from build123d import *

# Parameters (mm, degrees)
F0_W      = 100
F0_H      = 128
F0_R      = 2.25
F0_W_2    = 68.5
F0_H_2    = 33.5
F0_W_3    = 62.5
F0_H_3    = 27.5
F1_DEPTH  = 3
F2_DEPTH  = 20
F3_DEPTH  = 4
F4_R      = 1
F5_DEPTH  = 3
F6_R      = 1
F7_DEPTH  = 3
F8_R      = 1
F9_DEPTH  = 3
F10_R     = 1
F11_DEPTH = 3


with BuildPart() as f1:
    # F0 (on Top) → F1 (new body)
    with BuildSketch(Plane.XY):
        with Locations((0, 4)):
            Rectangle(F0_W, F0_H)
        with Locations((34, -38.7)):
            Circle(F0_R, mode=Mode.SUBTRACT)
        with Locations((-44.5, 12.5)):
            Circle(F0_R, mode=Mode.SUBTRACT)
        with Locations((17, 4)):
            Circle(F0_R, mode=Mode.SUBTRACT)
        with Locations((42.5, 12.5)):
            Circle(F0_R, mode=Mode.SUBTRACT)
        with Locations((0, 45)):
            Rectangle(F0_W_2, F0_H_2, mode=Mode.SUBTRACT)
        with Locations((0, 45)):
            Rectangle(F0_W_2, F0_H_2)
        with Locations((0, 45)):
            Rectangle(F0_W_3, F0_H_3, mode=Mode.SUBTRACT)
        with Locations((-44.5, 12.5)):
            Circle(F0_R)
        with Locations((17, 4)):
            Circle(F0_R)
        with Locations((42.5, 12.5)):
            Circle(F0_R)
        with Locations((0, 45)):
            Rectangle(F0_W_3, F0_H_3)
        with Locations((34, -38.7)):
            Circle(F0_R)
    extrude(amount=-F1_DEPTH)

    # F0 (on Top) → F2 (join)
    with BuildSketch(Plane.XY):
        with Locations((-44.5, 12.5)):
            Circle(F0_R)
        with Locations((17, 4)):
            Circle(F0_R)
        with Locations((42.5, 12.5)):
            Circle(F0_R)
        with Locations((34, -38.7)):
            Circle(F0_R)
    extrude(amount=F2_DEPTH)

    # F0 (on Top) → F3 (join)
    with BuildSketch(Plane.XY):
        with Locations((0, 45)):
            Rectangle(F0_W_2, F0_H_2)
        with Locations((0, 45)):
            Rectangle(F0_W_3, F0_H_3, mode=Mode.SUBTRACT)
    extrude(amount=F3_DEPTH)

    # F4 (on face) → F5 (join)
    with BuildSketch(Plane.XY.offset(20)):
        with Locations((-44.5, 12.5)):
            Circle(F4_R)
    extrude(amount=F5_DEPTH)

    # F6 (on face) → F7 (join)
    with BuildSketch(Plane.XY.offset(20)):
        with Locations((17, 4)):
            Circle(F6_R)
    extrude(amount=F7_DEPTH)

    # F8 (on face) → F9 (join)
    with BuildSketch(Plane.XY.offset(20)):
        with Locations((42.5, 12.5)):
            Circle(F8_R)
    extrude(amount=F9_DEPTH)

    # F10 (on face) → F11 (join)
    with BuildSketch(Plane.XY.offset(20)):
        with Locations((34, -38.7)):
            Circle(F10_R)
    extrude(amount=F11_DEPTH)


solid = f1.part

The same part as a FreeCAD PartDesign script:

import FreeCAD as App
import Part
import Sketcher
from FreeCAD import Vector
Q = App.Units.Quantity


def add_polygon(sketch, points):
    """Adds a closed chain of lines whose ends are joined by coincident constraints."""
    first, n = sketch.GeometryCount, len(points)
    for a, b in zip(points, points[1:] + points[:1]):
        sketch.addGeometry(Part.LineSegment(App.Vector(*a, 0), App.Vector(*b, 0)), False)
    for i in range(n):
        sketch.addConstraint(Sketcher.Constraint("Coincident", first + i, 2, first + (i + 1) % n, 1))

doc = App.newDocument("Part")
params = doc.addObject("Spreadsheet::Sheet", "Params")
for row, (alias, value) in enumerate([
    ("sketch1_width", "100 mm"),
    ("sketch1_height", "128 mm"),
    ("pad1_length", "3 mm"),
    ("sketch2_diameter", "4.5 mm"),
    ("pad2_length", "20 mm"),
    ("sketch3_width", "68.5 mm"),
    ("sketch3_width2", "62.5 mm"),
    ("sketch3_height", "33.5 mm"),
    ("sketch3_height2", "27.5 mm"),
    ("pad3_length", "4 mm"),
    ("sketch4_diameter", "2 mm"),
    ("pad4_length", "3 mm"),
    ("sketch5_diameter", "2 mm"),
    ("pad5_length", "3 mm"),
    ("sketch6_diameter", "2 mm"),
    ("pad6_length", "3 mm"),
    ("sketch7_diameter", "2 mm"),
    ("pad7_length", "3 mm"),
], start=1):
    params.set(f"A{row}", alias)
    params.set(f"B{row}", "=" + value)
    params.setAlias(f"B{row}", alias)

body = doc.addObject("PartDesign::Body", "Body")

sketch1 = body.newObject("Sketcher::SketchObject", "Sketch")
sketch1.AttachmentSupport = (doc.getObject("XY_Plane"), [""])
sketch1.MapMode = "FlatFace"
add_polygon(sketch1, [(-50, 68), (-50, -60), (50, -60), (50, 68)])
sketch1.addConstraint(Sketcher.Constraint("Vertical", 0))
sketch1.addConstraint(Sketcher.Constraint("Horizontal", 1))
sketch1.addConstraint(Sketcher.Constraint("Vertical", 2))
sketch1.addConstraint(Sketcher.Constraint("Horizontal", 3))
sketch1.addConstraint(Sketcher.Constraint("DistanceX", 1, 1, 1, 2, Q("100 mm")))
sketch1.addConstraint(Sketcher.Constraint("DistanceY", 0, 2, 0, 1, Q("128 mm")))
sketch1.addConstraint(Sketcher.Constraint("DistanceX", 0, 2, -1, 1, Q("50 mm")))
sketch1.addConstraint(Sketcher.Constraint("DistanceY", 0, 2, -1, 1, Q("60 mm")))
sketch1.setExpression("Constraints[8]", "Params.sketch1_width")
sketch1.setExpression("Constraints[9]", "Params.sketch1_height")
pad1 = body.newObject("PartDesign::Pad", "Pad")
pad1.Profile = sketch1
pad1.setExpression("Length", "Params.pad1_length")
pad1.Reversed = True

sketch2 = body.newObject("Sketcher::SketchObject", "Sketch001")
sketch2.AttachmentSupport = (doc.getObject("XY_Plane"), [""])
sketch2.MapMode = "FlatFace"
sketch2.addGeometry(Part.Circle(Vector(-44.5, 12.5, 0), Vector(0, 0, 1), 2.2), False)
sketch2.addGeometry(Part.Circle(Vector(17, 4, 0), Vector(0, 0, 1), 2.2), False)
sketch2.addGeometry(Part.Circle(Vector(42.5, 12.5, 0), Vector(0, 0, 1), 2.2), False)
sketch2.addGeometry(Part.Circle(Vector(34, -38.7, 0), Vector(0, 0, 1), 2.2), False)
sketch2.addConstraint(Sketcher.Constraint("Equal", 0, 1))
sketch2.addConstraint(Sketcher.Constraint("Equal", 1, 2))
sketch2.addConstraint(Sketcher.Constraint("Equal", 2, 3))
sketch2.addConstraint(Sketcher.Constraint("Horizontal", 0, 3, 2, 3))
sketch2.addConstraint(Sketcher.Constraint("Diameter", 0, Q("4.5 mm")))
sketch2.addConstraint(Sketcher.Constraint("DistanceX", -1, 1, 1, 3, Q("17 mm")))
sketch2.addConstraint(Sketcher.Constraint("DistanceY", -1, 1, 1, 3, Q("4 mm")))
sketch2.addConstraint(Sketcher.Constraint("DistanceX", -1, 1, 3, 3, Q("34 mm")))
sketch2.addConstraint(Sketcher.Constraint("DistanceX", 0, 3, 2, 3, Q("87 mm")))
sketch2.addConstraint(Sketcher.Constraint("DistanceX", 0, 3, -1, 1, Q("44.5 mm")))
sketch2.addConstraint(Sketcher.Constraint("DistanceY", -1, 1, 0, 3, Q("12.5 mm")))
sketch2.addConstraint(Sketcher.Constraint("DistanceY", 3, 3, -1, 1, Q("38.7 mm")))
sketch2.setExpression("Constraints[4]", "Params.sketch2_diameter")
pad2 = body.newObject("PartDesign::Pad", "Pad001")
pad2.Profile = sketch2
pad2.setExpression("Length", "Params.pad2_length")

sketch3 = body.newObject("Sketcher::SketchObject", "Sketch002")
sketch3.AttachmentSupport = (doc.getObject("XY_Plane"), [""])
sketch3.MapMode = "FlatFace"
add_polygon(sketch3, [(-34, 62), (-34, 28), (34, 28), (34, 62)])
add_polygon(sketch3, [(31, 31), (-31, 31), (-31, 59), (31, 59)])
sketch3.addConstraint(Sketcher.Constraint("Vertical", 0))
sketch3.addConstraint(Sketcher.Constraint("Horizontal", 1))
sketch3.addConstraint(Sketcher.Constraint("Vertical", 2))
sketch3.addConstraint(Sketcher.Constraint("Horizontal", 3))
sketch3.addConstraint(Sketcher.Constraint("Horizontal", 4))
sketch3.addConstraint(Sketcher.Constraint("Vertical", 5))
sketch3.addConstraint(Sketcher.Constraint("Horizontal", 6))
sketch3.addConstraint(Sketcher.Constraint("Vertical", 7))
sketch3.addConstraint(Sketcher.Constraint("DistanceX", 1, 1, 1, 2, Q("68.5 mm")))
sketch3.addConstraint(Sketcher.Constraint("DistanceX", 4, 2, 4, 1, Q("62.5 mm")))
sketch3.addConstraint(Sketcher.Constraint("DistanceY", 0, 2, 0, 1, Q("33.5 mm")))
sketch3.addConstraint(Sketcher.Constraint("DistanceY", 5, 1, 5, 2, Q("27.5 mm")))
sketch3.addConstraint(Sketcher.Constraint("DistanceX", 0, 2, 4, 2, Q("3 mm")))
sketch3.addConstraint(Sketcher.Constraint("DistanceY", 0, 2, 4, 2, Q("3 mm")))
sketch3.addConstraint(Sketcher.Constraint("DistanceX", 0, 2, -1, 1, Q("34.25 mm")))
sketch3.addConstraint(Sketcher.Constraint("DistanceY", -1, 1, 0, 2, Q("28.25 mm")))
sketch3.setExpression("Constraints[16]", "Params.sketch3_width")
sketch3.setExpression("Constraints[17]", "Params.sketch3_width2")
sketch3.setExpression("Constraints[18]", "Params.sketch3_height")
sketch3.setExpression("Constraints[19]", "Params.sketch3_height2")
pad3 = body.newObject("PartDesign::Pad", "Pad002")
pad3.Profile = sketch3
pad3.setExpression("Length", "Params.pad3_length")

sketch4 = body.newObject("Sketcher::SketchObject", "Sketch003")
sketch4.AttachmentSupport = (doc.getObject("XY_Plane"), [""])
sketch4.MapMode = "FlatFace"
sketch4.AttachmentOffset = App.Placement(Vector(0, 0, 20), App.Rotation())
sketch4.addGeometry(Part.Circle(Vector(-44.5, 12.5, 0), Vector(0, 0, 1), 1), False)
sketch4.addConstraint(Sketcher.Constraint("Diameter", 0, Q("2 mm")))
sketch4.addConstraint(Sketcher.Constraint("DistanceX", 0, 3, -1, 1, Q("44.5 mm")))
sketch4.addConstraint(Sketcher.Constraint("DistanceY", -1, 1, 0, 3, Q("12.5 mm")))
sketch4.setExpression("Constraints[0]", "Params.sketch4_diameter")
pad4 = body.newObject("PartDesign::Pad", "Pad003")
pad4.Profile = sketch4
pad4.setExpression("Length", "Params.pad4_length")

sketch5 = body.newObject("Sketcher::SketchObject", "Sketch004")
sketch5.AttachmentSupport = (doc.getObject("XY_Plane"), [""])
sketch5.MapMode = "FlatFace"
sketch5.AttachmentOffset = App.Placement(Vector(0, 0, 20), App.Rotation())
sketch5.addGeometry(Part.Circle(Vector(17, 4, 0), Vector(0, 0, 1), 1), False)
sketch5.addConstraint(Sketcher.Constraint("Diameter", 0, Q("2 mm")))
sketch5.addConstraint(Sketcher.Constraint("DistanceX", -1, 1, 0, 3, Q("17 mm")))
sketch5.addConstraint(Sketcher.Constraint("DistanceY", -1, 1, 0, 3, Q("4 mm")))
sketch5.setExpression("Constraints[0]", "Params.sketch5_diameter")
pad5 = body.newObject("PartDesign::Pad", "Pad004")
pad5.Profile = sketch5
pad5.setExpression("Length", "Params.pad5_length")

sketch6 = body.newObject("Sketcher::SketchObject", "Sketch005")
sketch6.AttachmentSupport = (doc.getObject("XY_Plane"), [""])
sketch6.MapMode = "FlatFace"
sketch6.AttachmentOffset = App.Placement(Vector(0, 0, 20), App.Rotation())
sketch6.addGeometry(Part.Circle(Vector(42.5, 12.5, 0), Vector(0, 0, 1), 1), False)
sketch6.addConstraint(Sketcher.Constraint("Diameter", 0, Q("2 mm")))
sketch6.addConstraint(Sketcher.Constraint("DistanceX", -1, 1, 0, 3, Q("42.5 mm")))
sketch6.addConstraint(Sketcher.Constraint("DistanceY", -1, 1, 0, 3, Q("12.5 mm")))
sketch6.setExpression("Constraints[0]", "Params.sketch6_diameter")
pad6 = body.newObject("PartDesign::Pad", "Pad005")
pad6.Profile = sketch6
pad6.setExpression("Length", "Params.pad6_length")

sketch7 = body.newObject("Sketcher::SketchObject", "Sketch006")
sketch7.AttachmentSupport = (doc.getObject("XY_Plane"), [""])
sketch7.MapMode = "FlatFace"
sketch7.AttachmentOffset = App.Placement(Vector(0, 0, 20), App.Rotation())
sketch7.addGeometry(Part.Circle(Vector(34, -38.7, 0), Vector(0, 0, 1), 1), False)
sketch7.addConstraint(Sketcher.Constraint("Diameter", 0, Q("2 mm")))
sketch7.addConstraint(Sketcher.Constraint("DistanceX", -1, 1, 0, 3, Q("34 mm")))
sketch7.addConstraint(Sketcher.Constraint("DistanceY", 0, 3, -1, 1, Q("38.7 mm")))
sketch7.setExpression("Constraints[0]", "Params.sketch7_diameter")
pad7 = body.newObject("PartDesign::Pad", "Pad006")
pad7.Profile = sketch7
pad7.setExpression("Length", "Params.pad7_length")

doc.recompute()
